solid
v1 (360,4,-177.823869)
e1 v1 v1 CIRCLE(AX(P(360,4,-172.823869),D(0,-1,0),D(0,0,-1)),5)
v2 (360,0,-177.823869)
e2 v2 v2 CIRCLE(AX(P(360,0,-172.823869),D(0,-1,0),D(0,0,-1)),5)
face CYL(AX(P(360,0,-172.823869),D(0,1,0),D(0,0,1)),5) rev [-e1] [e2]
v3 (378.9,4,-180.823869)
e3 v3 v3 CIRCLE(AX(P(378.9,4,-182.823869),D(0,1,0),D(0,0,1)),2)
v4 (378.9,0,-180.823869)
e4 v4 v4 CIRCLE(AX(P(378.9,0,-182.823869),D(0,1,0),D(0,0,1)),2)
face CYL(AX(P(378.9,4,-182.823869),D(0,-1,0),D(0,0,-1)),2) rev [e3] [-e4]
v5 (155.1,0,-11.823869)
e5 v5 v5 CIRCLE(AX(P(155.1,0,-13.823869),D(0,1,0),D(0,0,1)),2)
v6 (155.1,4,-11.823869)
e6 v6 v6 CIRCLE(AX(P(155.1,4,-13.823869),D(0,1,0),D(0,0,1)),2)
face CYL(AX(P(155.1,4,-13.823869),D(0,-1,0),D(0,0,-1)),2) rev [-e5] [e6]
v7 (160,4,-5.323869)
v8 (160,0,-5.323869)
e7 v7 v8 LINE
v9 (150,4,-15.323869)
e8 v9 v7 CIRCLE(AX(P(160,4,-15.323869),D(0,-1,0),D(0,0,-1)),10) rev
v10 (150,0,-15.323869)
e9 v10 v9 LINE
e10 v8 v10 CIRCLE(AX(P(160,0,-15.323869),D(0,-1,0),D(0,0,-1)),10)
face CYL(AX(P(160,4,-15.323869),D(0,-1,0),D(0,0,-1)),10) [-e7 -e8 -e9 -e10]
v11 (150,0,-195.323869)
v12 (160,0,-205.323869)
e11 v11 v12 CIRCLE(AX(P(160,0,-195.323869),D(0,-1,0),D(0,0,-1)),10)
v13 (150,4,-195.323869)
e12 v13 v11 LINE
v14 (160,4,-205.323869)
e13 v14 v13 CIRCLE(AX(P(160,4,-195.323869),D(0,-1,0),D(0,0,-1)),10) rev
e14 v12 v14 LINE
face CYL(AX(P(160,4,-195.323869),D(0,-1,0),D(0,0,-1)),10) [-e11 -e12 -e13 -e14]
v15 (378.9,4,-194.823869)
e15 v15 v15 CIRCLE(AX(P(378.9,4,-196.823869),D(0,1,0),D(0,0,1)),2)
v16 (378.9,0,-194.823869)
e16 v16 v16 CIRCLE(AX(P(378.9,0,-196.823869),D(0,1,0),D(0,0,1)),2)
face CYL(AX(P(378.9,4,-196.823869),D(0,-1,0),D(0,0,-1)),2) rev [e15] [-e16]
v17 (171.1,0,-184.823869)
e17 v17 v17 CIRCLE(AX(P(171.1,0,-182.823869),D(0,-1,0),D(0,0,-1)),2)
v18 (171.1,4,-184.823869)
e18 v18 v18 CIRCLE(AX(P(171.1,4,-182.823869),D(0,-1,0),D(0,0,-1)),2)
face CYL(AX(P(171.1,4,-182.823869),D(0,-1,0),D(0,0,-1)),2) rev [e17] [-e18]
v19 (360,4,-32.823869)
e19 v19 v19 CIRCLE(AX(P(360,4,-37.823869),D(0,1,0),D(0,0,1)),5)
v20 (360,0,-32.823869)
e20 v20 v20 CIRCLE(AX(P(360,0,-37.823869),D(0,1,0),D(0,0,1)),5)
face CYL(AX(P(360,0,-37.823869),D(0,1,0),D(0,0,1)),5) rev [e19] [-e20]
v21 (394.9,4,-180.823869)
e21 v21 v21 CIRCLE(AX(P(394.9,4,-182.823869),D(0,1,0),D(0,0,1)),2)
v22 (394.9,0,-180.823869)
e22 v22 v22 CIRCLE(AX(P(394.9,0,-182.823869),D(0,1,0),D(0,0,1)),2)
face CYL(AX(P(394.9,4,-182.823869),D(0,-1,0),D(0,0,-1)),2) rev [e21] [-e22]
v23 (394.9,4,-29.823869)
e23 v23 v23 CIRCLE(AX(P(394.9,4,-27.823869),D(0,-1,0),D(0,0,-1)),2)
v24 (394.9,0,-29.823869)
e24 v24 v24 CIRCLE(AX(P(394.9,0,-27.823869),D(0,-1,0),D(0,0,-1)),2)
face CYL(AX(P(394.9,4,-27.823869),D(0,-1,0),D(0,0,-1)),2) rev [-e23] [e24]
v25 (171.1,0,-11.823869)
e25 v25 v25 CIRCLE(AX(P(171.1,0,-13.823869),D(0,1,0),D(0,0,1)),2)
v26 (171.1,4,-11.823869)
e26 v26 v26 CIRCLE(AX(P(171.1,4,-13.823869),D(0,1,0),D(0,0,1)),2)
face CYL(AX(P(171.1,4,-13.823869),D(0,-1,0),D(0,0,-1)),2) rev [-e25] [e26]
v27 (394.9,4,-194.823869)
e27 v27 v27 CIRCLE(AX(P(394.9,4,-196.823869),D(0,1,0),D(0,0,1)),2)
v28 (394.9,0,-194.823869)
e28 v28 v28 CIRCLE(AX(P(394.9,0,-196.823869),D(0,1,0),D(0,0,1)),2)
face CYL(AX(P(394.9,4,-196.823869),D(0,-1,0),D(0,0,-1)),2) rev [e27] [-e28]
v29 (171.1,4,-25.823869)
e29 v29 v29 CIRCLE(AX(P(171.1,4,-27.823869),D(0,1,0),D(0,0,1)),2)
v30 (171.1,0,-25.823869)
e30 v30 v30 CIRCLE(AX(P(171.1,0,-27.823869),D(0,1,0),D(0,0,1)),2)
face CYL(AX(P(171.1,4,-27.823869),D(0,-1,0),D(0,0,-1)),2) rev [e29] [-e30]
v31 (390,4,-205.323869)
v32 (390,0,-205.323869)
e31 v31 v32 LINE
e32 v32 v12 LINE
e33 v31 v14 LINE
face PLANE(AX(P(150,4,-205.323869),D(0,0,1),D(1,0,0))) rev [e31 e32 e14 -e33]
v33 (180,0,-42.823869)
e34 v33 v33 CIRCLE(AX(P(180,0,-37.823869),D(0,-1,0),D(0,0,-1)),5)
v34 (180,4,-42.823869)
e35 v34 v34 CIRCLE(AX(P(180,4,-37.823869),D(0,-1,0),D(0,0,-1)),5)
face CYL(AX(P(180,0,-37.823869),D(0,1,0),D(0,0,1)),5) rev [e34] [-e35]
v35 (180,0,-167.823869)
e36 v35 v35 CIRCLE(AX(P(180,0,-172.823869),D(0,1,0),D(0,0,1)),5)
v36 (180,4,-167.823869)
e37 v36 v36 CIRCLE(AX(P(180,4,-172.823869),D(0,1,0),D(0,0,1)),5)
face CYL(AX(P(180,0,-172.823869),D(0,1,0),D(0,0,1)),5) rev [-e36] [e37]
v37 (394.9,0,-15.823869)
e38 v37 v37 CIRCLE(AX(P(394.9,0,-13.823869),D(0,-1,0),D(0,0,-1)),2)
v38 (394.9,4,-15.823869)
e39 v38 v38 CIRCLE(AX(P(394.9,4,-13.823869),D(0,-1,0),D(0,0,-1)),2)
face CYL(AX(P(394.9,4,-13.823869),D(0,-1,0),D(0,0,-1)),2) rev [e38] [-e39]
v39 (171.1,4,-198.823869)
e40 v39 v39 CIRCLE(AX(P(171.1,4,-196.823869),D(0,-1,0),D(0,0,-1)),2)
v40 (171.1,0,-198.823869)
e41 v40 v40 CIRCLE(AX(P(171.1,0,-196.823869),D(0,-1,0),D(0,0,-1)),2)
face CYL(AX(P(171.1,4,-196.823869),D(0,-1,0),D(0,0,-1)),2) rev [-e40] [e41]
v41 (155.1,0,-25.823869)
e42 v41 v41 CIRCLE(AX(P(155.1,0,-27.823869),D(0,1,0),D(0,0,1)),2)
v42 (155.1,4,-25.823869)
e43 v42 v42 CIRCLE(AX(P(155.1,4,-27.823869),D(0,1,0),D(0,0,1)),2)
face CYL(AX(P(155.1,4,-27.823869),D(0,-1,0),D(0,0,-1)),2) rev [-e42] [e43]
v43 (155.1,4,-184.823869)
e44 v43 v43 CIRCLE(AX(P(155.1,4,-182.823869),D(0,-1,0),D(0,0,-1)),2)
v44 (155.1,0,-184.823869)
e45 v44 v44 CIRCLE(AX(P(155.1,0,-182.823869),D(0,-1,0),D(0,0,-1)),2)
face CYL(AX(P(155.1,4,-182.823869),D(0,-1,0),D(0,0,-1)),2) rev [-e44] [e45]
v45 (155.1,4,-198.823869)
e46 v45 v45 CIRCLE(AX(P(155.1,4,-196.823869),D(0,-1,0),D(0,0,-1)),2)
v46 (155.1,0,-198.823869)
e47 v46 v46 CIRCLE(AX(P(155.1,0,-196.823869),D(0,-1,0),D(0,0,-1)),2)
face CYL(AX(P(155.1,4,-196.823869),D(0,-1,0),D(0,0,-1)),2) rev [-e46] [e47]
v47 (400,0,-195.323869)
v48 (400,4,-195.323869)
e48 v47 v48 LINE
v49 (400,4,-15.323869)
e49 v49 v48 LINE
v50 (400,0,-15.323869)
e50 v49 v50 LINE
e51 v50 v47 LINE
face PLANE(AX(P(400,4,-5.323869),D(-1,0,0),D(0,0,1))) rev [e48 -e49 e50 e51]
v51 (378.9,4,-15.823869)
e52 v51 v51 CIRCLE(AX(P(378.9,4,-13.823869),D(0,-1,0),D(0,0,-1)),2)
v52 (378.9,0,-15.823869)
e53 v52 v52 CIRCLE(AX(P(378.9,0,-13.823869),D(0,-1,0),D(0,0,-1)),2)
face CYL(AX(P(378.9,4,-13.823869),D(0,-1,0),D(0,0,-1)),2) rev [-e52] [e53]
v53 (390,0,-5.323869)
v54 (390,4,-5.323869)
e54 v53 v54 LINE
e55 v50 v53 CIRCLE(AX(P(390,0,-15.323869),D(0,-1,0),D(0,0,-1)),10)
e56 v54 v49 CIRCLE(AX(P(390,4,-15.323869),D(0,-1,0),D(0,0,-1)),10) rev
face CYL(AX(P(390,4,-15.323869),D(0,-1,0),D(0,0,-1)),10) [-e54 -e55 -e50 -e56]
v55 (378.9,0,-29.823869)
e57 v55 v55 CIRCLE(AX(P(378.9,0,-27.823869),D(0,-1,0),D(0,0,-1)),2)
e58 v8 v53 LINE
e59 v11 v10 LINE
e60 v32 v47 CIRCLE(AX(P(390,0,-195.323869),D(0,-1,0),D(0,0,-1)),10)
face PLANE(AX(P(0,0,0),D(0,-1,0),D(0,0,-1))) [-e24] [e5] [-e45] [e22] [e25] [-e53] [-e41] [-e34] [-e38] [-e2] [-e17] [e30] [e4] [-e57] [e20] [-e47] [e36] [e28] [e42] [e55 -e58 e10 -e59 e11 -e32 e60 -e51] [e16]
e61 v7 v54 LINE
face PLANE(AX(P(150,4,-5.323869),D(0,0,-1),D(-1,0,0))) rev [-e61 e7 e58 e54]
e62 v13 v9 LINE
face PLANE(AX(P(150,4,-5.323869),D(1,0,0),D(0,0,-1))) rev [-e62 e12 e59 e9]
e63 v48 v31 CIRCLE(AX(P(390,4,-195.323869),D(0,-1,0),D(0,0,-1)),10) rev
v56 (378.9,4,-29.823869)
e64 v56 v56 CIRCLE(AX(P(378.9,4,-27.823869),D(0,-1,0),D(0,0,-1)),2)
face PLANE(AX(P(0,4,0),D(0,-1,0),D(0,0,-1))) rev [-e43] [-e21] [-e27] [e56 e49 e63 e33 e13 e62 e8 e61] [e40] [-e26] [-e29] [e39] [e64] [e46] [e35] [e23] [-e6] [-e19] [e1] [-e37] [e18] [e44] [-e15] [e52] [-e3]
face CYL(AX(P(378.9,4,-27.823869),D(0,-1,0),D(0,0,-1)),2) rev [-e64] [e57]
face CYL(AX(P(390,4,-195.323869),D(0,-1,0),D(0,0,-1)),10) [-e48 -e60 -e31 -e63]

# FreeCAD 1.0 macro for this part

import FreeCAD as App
import Part
import Sketcher


def edges_at(feature, points):
    """Names of the edges that pass closest to the given points."""
    edges = feature.Shape.Edges
    near = lambda p: min(range(len(edges)), key=lambda i: edges[i].distToShape(Part.Vertex(*p))[0])
    return sorted({f"Edge{near(p) + 1}" for p in points})


def add_polygon(sketch, points):
    """Adds a closed chain of lines whose ends are joined by coincident constraints."""
    first, n = sketch.GeometryCount, len(points)
    for a, b in zip(points, points[1:] + points[:1]):
        sketch.addGeometry(Part.LineSegment(App.Vector(*a, 0), App.Vector(*b, 0)), False)
    for i in range(n):
        sketch.addConstraint(Sketcher.Constraint("Coincident", first + i, 2, first + (i + 1) % n, 1))

doc = App.newDocument("Part")
params = doc.addObject("Spreadsheet::Sheet", "Params")
for row, (alias, value) in enumerate([
    ("sketch1_width", "250 mm"),
    ("sketch1_height", "200 mm"),
    ("pad1_length", "4 mm"),
    ("sketch2_diameter", "10 mm"),
    ("sketch3_diameter", "4 mm"),
    ("fillet_radius", "10 mm"),
], start=1):
    params.set(f"A{row}", alias)
    params.set(f"B{row}", "=" + value)
    params.setAlias(f"B{row}", alias)

body = doc.addObject("PartDesign::Body", "Body")

sketch1 = doc.addObject("Sketcher::SketchObject", "Sketch")
body.addObject(sketch1)
sketch1.AttachmentSupport = (doc.XZ_Plane, [""])
sketch1.MapMode = "FlatFace"
add_polygon(sketch1, [(150, -205.323869), (150, -5.323869), (400, -5.323869), (400, -205.323869)])
sketch1.addConstraint(Sketcher.Constraint("Vertical", 0))
sketch1.addConstraint(Sketcher.Constraint("Horizontal", 1))
sketch1.addConstraint(Sketcher.Constraint("Vertical", 2))
sketch1.addConstraint(Sketcher.Constraint("Horizontal", 3))
sketch1.addConstraint(Sketcher.Constraint("DistanceX", 1, 1, 1, 2, 250.0))
sketch1.addConstraint(Sketcher.Constraint("DistanceY", 0, 1, 0, 2, 200.0))
sketch1.addConstraint(Sketcher.Constraint("DistanceX", -1, 1, 0, 2, 150.0))
sketch1.addConstraint(Sketcher.Constraint("DistanceY", 0, 2, -1, 1, 5.323869))
sketch1.setExpression("Constraints[8]", "Params.sketch1_width")
sketch1.setExpression("Constraints[9]", "Params.sketch1_height")
pad1 = doc.addObject("PartDesign::Pad", "Pad")
body.addObject(pad1)
pad1.Profile = sketch1
pad1.setExpression("Length", "Params.pad1_length")
pad1.Reversed = True

sketch2 = doc.addObject("Sketcher::SketchObject", "Sketch001")
body.addObject(sketch2)
sketch2.AttachmentSupport = (doc.XZ_Plane, [""])
sketch2.MapMode = "FlatFace"
sketch2.AttachmentOffset = App.Placement(App.Vector(0, 0, -4), App.Rotation())
sketch2.addGeometry(Part.Circle(App.Vector(360, -37.823869, 0), App.Vector(0, 0, 1), 5), False)
sketch2.addGeometry(Part.Circle(App.Vector(180, -37.823869, 0), App.Vector(0, 0, 1), 5), False)
sketch2.addGeometry(Part.Circle(App.Vector(360, -172.823869, 0), App.Vector(0, 0, 1), 5), False)
sketch2.addGeometry(Part.Circle(App.Vector(180, -172.823869, 0), App.Vector(0, 0, 1), 5), False)
sketch2.addConstraint(Sketcher.Constraint("Equal", 0, 1))
sketch2.addConstraint(Sketcher.Constraint("Equal", 1, 2))
sketch2.addConstraint(Sketcher.Constraint("Equal", 2, 3))
sketch2.addConstraint(Sketcher.Constraint("Horizontal", 0, 3, 1, 3))
sketch2.addConstraint(Sketcher.Constraint("Horizontal", 2, 3, 3, 3))
sketch2.addConstraint(Sketcher.Constraint("Vertical", 0, 3, 2, 3))
sketch2.addConstraint(Sketcher.Constraint("Vertical", 1, 3, 3, 3))
sketch2.addConstraint(Sketcher.Constraint("Diameter", 0, 10.0))
sketch2.addConstraint(Sketcher.Constraint("DistanceX", -1, 1, 0, 3, 360.0))
sketch2.addConstraint(Sketcher.Constraint("DistanceX", -1, 1, 1, 3, 180.0))
sketch2.addConstraint(Sketcher.Constraint("DistanceY", 2, 3, 0, 3, 135.0))
sketch2.addConstraint(Sketcher.Constraint("DistanceY", 0, 3, -1, 1, 37.823869))
sketch2.setExpression("Constraints[7]", "Params.sketch2_diameter")
pocket1 = doc.addObject("PartDesign::Pocket", "Pocket")
body.addObject(pocket1)
pocket1.Profile = sketch2
pocket1.Type = "ThroughAll"
pocket1.Reversed = True

sketch3 = doc.addObject("Sketcher::SketchObject", "Sketch002")
body.addObject(sketch3)
sketch3.AttachmentSupport = (doc.XZ_Plane, [""])
sketch3.MapMode = "FlatFace"
sketch3.addGeometry(Part.Circle(App.Vector(155.1, -196.823869, 0), App.Vector(0, 0, 1), 2), False)
sketch3.addGeometry(Part.Circle(App.Vector(155.1, -182.823869, 0), App.Vector(0, 0, 1), 2), False)
sketch3.addGeometry(Part.Circle(App.Vector(171.1, -196.823869, 0), App.Vector(0, 0, 1), 2), False)
sketch3.addGeometry(Part.Circle(App.Vector(171.1, -182.823869, 0), App.Vector(0, 0, 1), 2), False)
sketch3.addGeometry(Part.Circle(App.Vector(155.1, -27.823869, 0), App.Vector(0, 0, 1), 2), False)
sketch3.addGeometry(Part.Circle(App.Vector(155.1, -13.823869, 0), App.Vector(0, 0, 1), 2), False)
sketch3.addGeometry(Part.Circle(App.Vector(171.1, -13.823869, 0), App.Vector(0, 0, 1), 2), False)
sketch3.addGeometry(Part.Circle(App.Vector(171.1, -27.823869, 0), App.Vector(0, 0, 1), 2), False)
sketch3.addGeometry(Part.Circle(App.Vector(394.9, -182.823869, 0), App.Vector(0, 0, 1), 2), False)
sketch3.addGeometry(Part.Circle(App.Vector(394.9, -196.823869, 0), App.Vector(0, 0, 1), 2), False)
sketch3.addGeometry(Part.Circle(App.Vector(378.9, -196.823869, 0), App.Vector(0, 0, 1), 2), False)
sketch3.addGeometry(Part.Circle(App.Vector(378.9, -182.823869, 0), App.Vector(0, 0, 1), 2), False)
sketch3.addGeometry(Part.Circle(App.Vector(394.9, -27.823869, 0), App.Vector(0, 0, 1), 2), False)
sketch3.addGeometry(Part.Circle(App.Vector(378.9, -27.823869, 0), App.Vector(0, 0, 1), 2), False)
sketch3.addGeometry(Part.Circle(App.Vector(378.9, -13.823869, 0), App.Vector(0, 0, 1), 2), False)
sketch3.addGeometry(Part.Circle(App.Vector(394.9, -13.823869, 0), App.Vector(0, 0, 1), 2), False)
sketch3.addConstraint(Sketcher.Constraint("Equal", 0, 1))
sketch3.addConstraint(Sketcher.Constraint("Equal", 1, 2))
sketch3.addConstraint(Sketcher.Constraint("Equal", 2, 3))
sketch3.addConstraint(Sketcher.Constraint("Equal", 3, 4))
sketch3.addConstraint(Sketcher.Constraint("Equal", 4, 5))
sketch3.addConstraint(Sketcher.Constraint("Equal", 5, 6))
sketch3.addConstraint(Sketcher.Constraint("Equal", 6, 7))
sketch3.addConstraint(Sketcher.Constraint("Equal", 7, 8))
sketch3.addConstraint(Sketcher.Constraint("Equal", 8, 9))
sketch3.addConstraint(Sketcher.Constraint("Equal", 9, 10))
sketch3.addConstraint(Sketcher.Constraint("Equal", 10, 11))
sketch3.addConstraint(Sketcher.Constraint("Equal", 11, 12))
sketch3.addConstraint(Sketcher.Constraint("Equal", 12, 13))
sketch3.addConstraint(Sketcher.Constraint("Equal", 13, 14))
sketch3.addConstraint(Sketcher.Constraint("Equal", 14, 15))
sketch3.addConstraint(Sketcher.Constraint("Horizontal", 0, 3, 2, 3))
sketch3.addConstraint(Sketcher.Constraint("Horizontal", 1, 3, 3, 3))
sketch3.addConstraint(Sketcher.Constraint("Horizontal", 5, 3, 6, 3))
sketch3.addConstraint(Sketcher.Constraint("Horizontal", 4, 3, 7, 3))
sketch3.addConstraint(Sketcher.Constraint("Horizontal", 3, 3, 8, 3))
sketch3.addConstraint(Sketcher.Constraint("Horizontal", 2, 3, 9, 3))
sketch3.addConstraint(Sketcher.Constraint("Horizontal", 9, 3, 10, 3))
sketch3.addConstraint(Sketcher.Constraint("Horizontal", 8, 3, 11, 3))
sketch3.addConstraint(Sketcher.Constraint("Horizontal", 7, 3, 12, 3))
sketch3.addConstraint(Sketcher.Constraint("Horizontal", 12, 3, 13, 3))
sketch3.addConstraint(Sketcher.Constraint("Horizontal", 6, 3, 14, 3))
sketch3.addConstraint(Sketcher.Constraint("Horizontal", 14, 3, 15, 3))
sketch3.addConstraint(Sketcher.Constraint("Vertical", 0, 3, 1, 3))
sketch3.addConstraint(Sketcher.Constraint("Vertical", 2, 3, 3, 3))
sketch3.addConstraint(Sketcher.Constraint("Vertical", 1, 3, 4, 3))
sketch3.addConstraint(Sketcher.Constraint("Vertical", 4, 3, 5, 3))
sketch3.addConstraint(Sketcher.Constraint("Vertical", 3, 3, 6, 3))
sketch3.addConstraint(Sketcher.Constraint("Vertical", 6, 3, 7, 3))
sketch3.addConstraint(Sketcher.Constraint("Vertical", 8, 3, 9, 3))
sketch3.addConstraint(Sketcher.Constraint("Vertical", 10, 3, 11, 3))
sketch3.addConstraint(Sketcher.Constraint("Vertical", 9, 3, 12, 3))
sketch3.addConstraint(Sketcher.Constraint("Vertical", 11, 3, 13, 3))
sketch3.addConstraint(Sketcher.Constraint("Vertical", 13, 3, 14, 3))
sketch3.addConstraint(Sketcher.Constraint("Vertical", 12, 3, 15, 3))
sketch3.addConstraint(Sketcher.Constraint("Diameter", 0, 4.0))
sketch3.addConstraint(Sketcher.Constraint("DistanceY", 0, 3, 1, 3, 14.0))
sketch3.addConstraint(Sketcher.Constraint("DistanceX", 0, 3, 2, 3, 16.0))
sketch3.addConstraint(Sketcher.Constraint("DistanceY", 1, 3, 4, 3, 155.0))
sketch3.addConstraint(Sketcher.Constraint("DistanceY", 4, 3, 5, 3, 14.0))
sketch3.addConstraint(Sketcher.Constraint("DistanceX", 10, 3, 9, 3, 16.0))
sketch3.addConstraint(Sketcher.Constraint("DistanceX", -1, 1, 0, 3, 155.1))
sketch3.addConstraint(Sketcher.Constraint("DistanceX", -1, 1, 8, 3, 394.9))
sketch3.addConstraint(Sketcher.Constraint("DistanceY", 0, 3, -1, 1, 196.823869))
sketch3.setExpression("Constraints[39]", "Params.sketch3_diameter")
pocket2 = doc.addObject("PartDesign::Pocket", "Pocket001")
body.addObject(pocket2)
pocket2.Profile = sketch3
pocket2.Type = "ThroughAll"
doc.recompute()

fillet = doc.addObject("PartDesign::Fillet", "Fillet")
body.addObject(fillet)
fillet.Base = (pocket2, edges_at(pocket2, [
    (150, 2, -205.324),
    (400, 2, -205.324),
    (400, 2, -5.324),
    (150, 2, -5.324),
]))
fillet.setExpression("Radius", "Params.fillet_radius")

doc.recompute()
